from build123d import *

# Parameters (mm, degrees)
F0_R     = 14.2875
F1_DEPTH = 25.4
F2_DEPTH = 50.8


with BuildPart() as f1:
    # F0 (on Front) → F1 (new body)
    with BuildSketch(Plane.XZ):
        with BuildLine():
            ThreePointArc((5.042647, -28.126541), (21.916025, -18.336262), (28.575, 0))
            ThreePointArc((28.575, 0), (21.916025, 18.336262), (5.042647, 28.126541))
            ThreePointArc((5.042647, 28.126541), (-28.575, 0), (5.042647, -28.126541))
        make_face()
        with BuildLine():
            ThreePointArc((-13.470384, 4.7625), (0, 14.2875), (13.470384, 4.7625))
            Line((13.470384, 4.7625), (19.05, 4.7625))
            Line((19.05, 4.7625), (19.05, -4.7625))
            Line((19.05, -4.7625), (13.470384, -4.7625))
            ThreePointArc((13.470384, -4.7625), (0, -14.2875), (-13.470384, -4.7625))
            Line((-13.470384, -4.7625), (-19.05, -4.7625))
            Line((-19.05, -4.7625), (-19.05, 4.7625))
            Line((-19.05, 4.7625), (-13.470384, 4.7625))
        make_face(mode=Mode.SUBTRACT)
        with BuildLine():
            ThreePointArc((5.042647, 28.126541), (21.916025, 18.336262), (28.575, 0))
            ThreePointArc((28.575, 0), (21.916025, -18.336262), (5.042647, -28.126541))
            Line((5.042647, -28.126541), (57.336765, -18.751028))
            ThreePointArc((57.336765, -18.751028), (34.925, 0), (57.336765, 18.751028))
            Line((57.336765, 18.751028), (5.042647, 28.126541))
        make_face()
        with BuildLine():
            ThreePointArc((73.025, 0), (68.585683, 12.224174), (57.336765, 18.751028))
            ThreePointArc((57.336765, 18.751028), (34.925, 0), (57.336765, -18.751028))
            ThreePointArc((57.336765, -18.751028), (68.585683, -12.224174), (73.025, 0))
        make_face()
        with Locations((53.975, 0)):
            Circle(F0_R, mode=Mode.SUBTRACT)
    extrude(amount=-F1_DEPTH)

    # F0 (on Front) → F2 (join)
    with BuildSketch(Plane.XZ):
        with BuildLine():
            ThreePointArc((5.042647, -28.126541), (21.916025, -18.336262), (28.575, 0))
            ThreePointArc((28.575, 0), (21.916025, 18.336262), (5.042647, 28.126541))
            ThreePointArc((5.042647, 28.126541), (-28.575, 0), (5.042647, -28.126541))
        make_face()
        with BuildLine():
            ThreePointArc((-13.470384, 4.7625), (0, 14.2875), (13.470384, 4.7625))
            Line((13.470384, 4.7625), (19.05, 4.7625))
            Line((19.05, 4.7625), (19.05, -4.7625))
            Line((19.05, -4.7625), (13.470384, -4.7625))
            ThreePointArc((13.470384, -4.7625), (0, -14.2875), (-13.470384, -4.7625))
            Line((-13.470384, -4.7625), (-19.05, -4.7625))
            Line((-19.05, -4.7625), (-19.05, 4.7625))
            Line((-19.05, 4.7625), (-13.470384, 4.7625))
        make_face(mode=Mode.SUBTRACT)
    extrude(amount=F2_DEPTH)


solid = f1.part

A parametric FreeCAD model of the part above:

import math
import FreeCAD as App
import Part
import Sketcher

V = App.Vector
Q = App.Units.Quantity

doc = App.newDocument("Part")
body = doc.addObject("PartDesign::Body", "Body")

sketch1 = doc.addObject("Sketcher::SketchObject", "Sketch")
body.addObject(sketch1)
sketch1.AttachmentSupport = (doc.XZ_Plane, [""])
sketch1.MapMode = "FlatFace"
sketch1.addGeometry(Part.ArcOfCircle(Part.Circle(V(0, 0, 0), V(0, 0, 1), 28.575), math.radians(79.835751), math.radians(280.164249)), False)
sketch1.addGeometry(Part.LineSegment(V(5.042647, -28.126541, 0), V(57.336765, -18.751028, 0)), False)
sketch1.addGeometry(Part.ArcOfCircle(Part.Circle(V(53.974998, 0.000001, 0), V(0, 0, 1), 19.050002), math.radians(-79.835746), math.radians(-0.000004)), False)
sketch1.addGeometry(Part.ArcOfCircle(Part.Circle(V(53.974998, -0.000001, 0), V(0, 0, 1), 19.050002), math.radians(0.000004), math.radians(79.835746)), False)
sketch1.addGeometry(Part.LineSegment(V(57.336765, 18.751028, 0), V(5.042647, 28.126541, 0)), False)
sketch1.addGeometry(Part.LineSegment(V(-19.05, 4.7625, 0), V(-13.470384, 4.7625, 0)), False)
sketch1.addGeometry(Part.ArcOfCircle(Part.Circle(V(0, 0, 0), V(0, 0, 1), 14.2875), math.radians(19.47122), math.radians(160.52878)), False)
sketch1.addGeometry(Part.LineSegment(V(13.470384, 4.7625, 0), V(19.05, 4.7625, 0)), False)
sketch1.addGeometry(Part.LineSegment(V(19.05, 4.7625, 0), V(19.05, -4.7625, 0)), False)
sketch1.addGeometry(Part.LineSegment(V(19.05, -4.7625, 0), V(13.470384, -4.7625, 0)), False)
sketch1.addGeometry(Part.ArcOfCircle(Part.Circle(V(0, 0, 0), V(0, 0, 1), 14.2875), math.radians(-160.52878), math.radians(-19.47122)), False)
sketch1.addGeometry(Part.LineSegment(V(-13.470384, -4.7625, 0), V(-19.05, -4.7625, 0)), False)
sketch1.addGeometry(Part.LineSegment(V(-19.05, -4.7625, 0), V(-19.05, 4.7625, 0)), False)
sketch1.addGeometry(Part.Circle(V(53.975, 0, 0), V(0, 0, 1), 14.2875), False)
sketch1.addConstraint(Sketcher.Constraint("Tangent", 0, 2, 1, 1))
sketch1.addConstraint(Sketcher.Constraint("Tangent", 1, 2, 2, 1))
sketch1.addConstraint(Sketcher.Constraint("Tangent", 2, 2, 3, 1))
sketch1.addConstraint(Sketcher.Constraint("Tangent", 3, 2, 4, 1))
sketch1.addConstraint(Sketcher.Constraint("Tangent", 4, 2, 0, 1))
sketch1.addConstraint(Sketcher.Constraint("Coincident", 5, 2, 6, 2))
sketch1.addConstraint(Sketcher.Constraint("Coincident", 6, 1, 7, 1))
sketch1.addConstraint(Sketcher.Constraint("Coincident", 7, 2, 8, 1))
sketch1.addConstraint(Sketcher.Constraint("Coincident", 8, 2, 9, 1))
sketch1.addConstraint(Sketcher.Constraint("Coincident", 9, 2, 10, 2))
sketch1.addConstraint(Sketcher.Constraint("Coincident", 10, 1, 11, 1))
sketch1.addConstraint(Sketcher.Constraint("Coincident", 11, 2, 12, 1))
sketch1.addConstraint(Sketcher.Constraint("Coincident", 12, 2, 5, 1))
sketch1.addConstraint(Sketcher.Constraint("Horizontal", 5))
sketch1.addConstraint(Sketcher.Constraint("Horizontal", 7))
sketch1.addConstraint(Sketcher.Constraint("Vertical", 8))
sketch1.addConstraint(Sketcher.Constraint("Horizontal", 9))
sketch1.addConstraint(Sketcher.Constraint("Horizontal", 11))
sketch1.addConstraint(Sketcher.Constraint("Vertical", 12))
sketch1.addConstraint(Sketcher.Constraint("Coincident", 0, 3, -1, 1))
sketch1.addConstraint(Sketcher.Constraint("Coincident", 6, 3, -1, 1))
sketch1.addConstraint(Sketcher.Constraint("Coincident", 10, 3, -1, 1))
sketch1.addConstraint(Sketcher.Constraint("Coincident", 13, 3, 2, 3))
sketch1.addConstraint(Sketcher.Constraint("Equal", 2, 3))
sketch1.addConstraint(Sketcher.Constraint("Equal", 6, 10))
sketch1.addConstraint(Sketcher.Constraint("Equal", 10, 13))
sketch1.addConstraint(Sketcher.Constraint("Symmetric", 7, 2, 11, 2, -1, 1))
sketch1.addConstraint(Sketcher.Constraint("PointOnObject", 2, 3, -1))
sketch1.addConstraint(Sketcher.Constraint("PointOnObject", 2, 2, -1))
sketch1.addConstraint(Sketcher.Constraint("Horizontal", 5, 2, 6, 1))
sketch1.addConstraint(Sketcher.Constraint("Horizontal", 9, 2, 10, 1))
sketch1.addConstraint(Sketcher.Constraint("Radius", 2, Q("0.7500001 in")))
sketch1.addConstraint(Sketcher.Constraint("Diameter", 13, Q("1.125 in")))
sketch1.addConstraint(Sketcher.Constraint("Radius", 0, Q("1.125 in")))
sketch1.addConstraint(Sketcher.Constraint("DistanceY", 8, 2, 8, 1, Q("0.375 in")))
sketch1.addConstraint(Sketcher.Constraint("DistanceX", -1, 1, 7, 2, Q("0.75 in")))
sketch1.addConstraint(Sketcher.Constraint("DistanceX", -1, 1, 2, 3, Q("2.1249999 in")))
pad1 = doc.addObject("PartDesign::Pad", "Pad")
body.addObject(pad1)
pad1.Profile = sketch1
pad1.Length = Q("1 in")
pad1.Reversed = True

sketch2 = doc.addObject("Sketcher::SketchObject", "Sketch001")
body.addObject(sketch2)
sketch2.AttachmentSupport = (doc.XZ_Plane, [""])
sketch2.MapMode = "FlatFace"
sketch2.addGeometry(Part.ArcOfCircle(Part.Circle(V(0.000003, -0.000002, 0), V(0, 0, 1), 28.574997), math.radians(-79.835756), math.radians(0.000004)), False)
sketch2.addGeometry(Part.ArcOfCircle(Part.Circle(V(0.000003, 0.000002, 0), V(0, 0, 1), 28.574997), math.radians(-0.000004), math.radians(79.835756)), False)
sketch2.addGeometry(Part.ArcOfCircle(Part.Circle(V(0, 0, 0), V(0, 0, 1), 28.575), math.radians(79.835751), math.radians(280.164249)), False)
sketch2.addGeometry(Part.LineSegment(V(-19.05, 4.7625, 0), V(-13.470384, 4.7625, 0)), False)
sketch2.addGeometry(Part.ArcOfCircle(Part.Circle(V(0, 0, 0), V(0, 0, 1), 14.2875), math.radians(19.47122), math.radians(160.52878)), False)
sketch2.addGeometry(Part.LineSegment(V(13.470384, 4.7625, 0), V(19.05, 4.7625, 0)), False)
sketch2.addGeometry(Part.LineSegment(V(19.05, 4.7625, 0), V(19.05, -4.7625, 0)), False)
sketch2.addGeometry(Part.LineSegment(V(19.05, -4.7625, 0), V(13.470384, -4.7625, 0)), False)
sketch2.addGeometry(Part.ArcOfCircle(Part.Circle(V(0, 0, 0), V(0, 0, 1), 14.2875), math.radians(-160.52878), math.radians(-19.47122)), False)
sketch2.addGeometry(Part.LineSegment(V(-13.470384, -4.7625, 0), V(-19.05, -4.7625, 0)), False)
sketch2.addGeometry(Part.LineSegment(V(-19.05, -4.7625, 0), V(-19.05, 4.7625, 0)), False)
sketch2.addConstraint(Sketcher.Constraint("Tangent", 0, 2, 1, 1))
sketch2.addConstraint(Sketcher.Constraint("Tangent", 1, 2, 2, 1))
sketch2.addConstraint(Sketcher.Constraint("Tangent", 2, 2, 0, 1))
sketch2.addConstraint(Sketcher.Constraint("Coincident", 3, 2, 4, 2))
sketch2.addConstraint(Sketcher.Constraint("Coincident", 4, 1, 5, 1))
sketch2.addConstraint(Sketcher.Constraint("Coincident", 5, 2, 6, 1))
sketch2.addConstraint(Sketcher.Constraint("Coincident", 6, 2, 7, 1))
sketch2.addConstraint(Sketcher.Constraint("Coincident", 7, 2, 8, 2))
sketch2.addConstraint(Sketcher.Constraint("Coincident", 8, 1, 9, 1))
sketch2.addConstraint(Sketcher.Constraint("Coincident", 9, 2, 10, 1))
sketch2.addConstraint(Sketcher.Constraint("Coincident", 10, 2, 3, 1))
sketch2.addConstraint(Sketcher.Constraint("Horizontal", 3))
sketch2.addConstraint(Sketcher.Constraint("Horizontal", 5))
sketch2.addConstraint(Sketcher.Constraint("Vertical", 6))
sketch2.addConstraint(Sketcher.Constraint("Horizontal", 7))
sketch2.addConstraint(Sketcher.Constraint("Horizontal", 9))
sketch2.addConstraint(Sketcher.Constraint("Vertical", 10))
sketch2.addConstraint(Sketcher.Constraint("Coincident", 0, 3, -1, 1))
sketch2.addConstraint(Sketcher.Constraint("Coincident", 4, 3, -1, 1))
sketch2.addConstraint(Sketcher.Constraint("Coincident", 8, 3, -1, 1))
sketch2.addConstraint(Sketcher.Constraint("Equal", 4, 8))
sketch2.addConstraint(Sketcher.Constraint("Symmetric", 5, 2, 9, 2, -1, 1))
sketch2.addConstraint(Sketcher.Constraint("PointOnObject", 0, 2, -1))
sketch2.addConstraint(Sketcher.Constraint("Horizontal", 3, 2, 4, 1))
sketch2.addConstraint(Sketcher.Constraint("Horizontal", 7, 2, 8, 1))
sketch2.addConstraint(Sketcher.Constraint("Vertical", 1, 2, 2, 2))
sketch2.addConstraint(Sketcher.Constraint("Radius", 0, Q("1.1249999 in")))
sketch2.addConstraint(Sketcher.Constraint("Radius", 4, Q("0.5625 in")))
sketch2.addConstraint(Sketcher.Constraint("DistanceY", 6, 2, 6, 1, Q("0.375 in")))
sketch2.addConstraint(Sketcher.Constraint("DistanceX", -1, 1, 5, 2, Q("0.75 in")))
sketch2.addConstraint(Sketcher.Constraint("DistanceY", -1, 1, 1, 2, Q("28.126541 mm")))
pad2 = doc.addObject("PartDesign::Pad", "Pad001")
body.addObject(pad2)
pad2.Profile = sketch2
pad2.Length = Q("2 in")

doc.recompute()
